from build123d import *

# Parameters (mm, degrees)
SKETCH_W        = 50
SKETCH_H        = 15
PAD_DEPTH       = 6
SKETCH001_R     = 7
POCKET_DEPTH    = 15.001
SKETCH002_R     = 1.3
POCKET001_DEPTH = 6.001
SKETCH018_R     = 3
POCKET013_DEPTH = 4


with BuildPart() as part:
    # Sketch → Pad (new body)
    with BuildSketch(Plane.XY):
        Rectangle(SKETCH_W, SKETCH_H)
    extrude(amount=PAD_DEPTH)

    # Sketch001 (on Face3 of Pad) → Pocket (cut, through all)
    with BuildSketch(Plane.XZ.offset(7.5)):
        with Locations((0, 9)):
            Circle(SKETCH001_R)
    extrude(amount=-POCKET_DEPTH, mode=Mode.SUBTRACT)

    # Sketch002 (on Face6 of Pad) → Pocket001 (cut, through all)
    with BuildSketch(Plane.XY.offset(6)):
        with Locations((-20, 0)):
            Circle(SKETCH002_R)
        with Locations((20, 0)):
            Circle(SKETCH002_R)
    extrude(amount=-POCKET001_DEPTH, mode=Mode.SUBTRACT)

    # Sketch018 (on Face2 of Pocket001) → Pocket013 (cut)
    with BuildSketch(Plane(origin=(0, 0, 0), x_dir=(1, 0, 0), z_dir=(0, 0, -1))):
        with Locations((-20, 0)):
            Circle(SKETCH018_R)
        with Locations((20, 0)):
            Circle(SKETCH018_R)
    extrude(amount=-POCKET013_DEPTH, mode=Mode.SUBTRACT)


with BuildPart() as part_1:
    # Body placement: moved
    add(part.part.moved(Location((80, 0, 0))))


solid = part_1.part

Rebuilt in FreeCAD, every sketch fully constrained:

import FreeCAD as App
import Part
import Sketcher

doc = App.newDocument("Part")
body = doc.addObject("PartDesign::Body", "Body")

sketch1 = body.newObject("Sketcher::SketchObject", "Sketch")
sketch1.AttachmentSupport = (doc.getObject("XY_Plane"), [""])
sketch1.MapMode = "FlatFace"
sketch1.addGeometry(Part.LineSegment(App.Vector(-25, 8, 0), App.Vector(-25, -8, 0)), False)
sketch1.addGeometry(Part.LineSegment(App.Vector(-25, -8, 0), App.Vector(25, -8, 0)), False)
sketch1.addGeometry(Part.LineSegment(App.Vector(25, -8, 0), App.Vector(25, 8, 0)), False)
sketch1.addGeometry(Part.LineSegment(App.Vector(25, 8, 0), App.Vector(-25, 8, 0)), False)
sketch1.addConstraint(Sketcher.Constraint("Coincident", 0, 2, 1, 1))
sketch1.addConstraint(Sketcher.Constraint("Coincident", 1, 2, 2, 1))
sketch1.addConstraint(Sketcher.Constraint("Coincident", 2, 2, 3, 1))
sketch1.addConstraint(Sketcher.Constraint("Coincident", 3, 2, 0, 1))
sketch1.addConstraint(Sketcher.Constraint("Vertical", 0))
sketch1.addConstraint(Sketcher.Constraint("Horizontal", 1))
sketch1.addConstraint(Sketcher.Constraint("Vertical", 2))
sketch1.addConstraint(Sketcher.Constraint("Horizontal", 3))
sketch1.addConstraint(Sketcher.Constraint("Symmetric", 0, 2, 2, 2, -1, 1))
sketch1.addConstraint(Sketcher.Constraint("DistanceX", 1, 1, 1, 2, 50.0))
sketch1.addConstraint(Sketcher.Constraint("DistanceY", 0, 2, 0, 1, 15.0))
pad1 = body.newObject("PartDesign::Pad", "Pad")
pad1.Profile = sketch1
pad1.Length = 6

sketch2 = body.newObject("Sketcher::SketchObject", "Sketch001")
sketch2.AttachmentSupport = (doc.getObject("XZ_Plane"), [""])
sketch2.MapMode = "FlatFace"
sketch2.AttachmentOffset = App.Placement(App.Vector(0, 0, 7.5), App.Rotation())
sketch2.addGeometry(Part.Circle(App.Vector(0, 9, 0), App.Vector(0, 0, 1), 7), False)
sketch2.addConstraint(Sketcher.Constraint("PointOnObject", 0, 3, -2))
sketch2.addConstraint(Sketcher.Constraint("Diameter", 0, 14.0))
sketch2.addConstraint(Sketcher.Constraint("DistanceY", -1, 1, 0, 3, 9.0))
pocket1 = body.newObject("PartDesign::Pocket", "Pocket")
pocket1.Profile = sketch2
pocket1.Type = "ThroughAll"

sketch3 = body.newObject("Sketcher::SketchObject", "Sketch002")
sketch3.AttachmentSupport = (doc.getObject("XY_Plane"), [""])
sketch3.MapMode = "FlatFace"
sketch3.AttachmentOffset = App.Placement(App.Vector(0, 0, 6), App.Rotation())
sketch3.addGeometry(Part.Circle(App.Vector(-20, 0, 0), App.Vector(0, 0, 1), 1.3), False)
sketch3.addGeometry(Part.Circle(App.Vector(20, 0, 0), App.Vector(0, 0, 1), 1.3), False)
sketch3.addConstraint(Sketcher.Constraint("Equal", 0, 1))
sketch3.addConstraint(Sketcher.Constraint("Symmetric", 0, 3, 1, 3, -1, 1))
sketch3.addConstraint(Sketcher.Constraint("PointOnObject", 0, 3, -1))
sketch3.addConstraint(Sketcher.Constraint("Diameter", 0, 2.6))
sketch3.addConstraint(Sketcher.Constraint("DistanceX", 0, 3, -1, 1, 20.0))
pocket2 = body.newObject("PartDesign::Pocket", "Pocket001")
pocket2.Profile = sketch3
pocket2.Type = "ThroughAll"

sketch4 = body.newObject("Sketcher::SketchObject", "Sketch003")
sketch4.AttachmentSupport = (doc.getObject("XY_Plane"), [""])
sketch4.MapMode = "FlatFace"
sketch4.addGeometry(Part.Circle(App.Vector(-20, 0, 0), App.Vector(0, 0, 1), 3), False)
sketch4.addGeometry(Part.Circle(App.Vector(20, 0, 0), App.Vector(0, 0, 1), 3), False)
sketch4.addConstraint(Sketcher.Constraint("Equal", 0, 1))
sketch4.addConstraint(Sketcher.Constraint("Symmetric", 0, 3, 1, 3, -1, 1))
sketch4.addConstraint(Sketcher.Constraint("PointOnObject", 0, 3, -1))
sketch4.addConstraint(Sketcher.Constraint("Diameter", 0, 6.0))
sketch4.addConstraint(Sketcher.Constraint("DistanceX", 0, 3, -1, 1, 20.0))
pocket3 = body.newObject("PartDesign::Pocket", "Pocket002")
pocket3.Profile = sketch4
pocket3.Length = 4
pocket3.Reversed = True
body2 = doc.addObject("PartDesign::Body", "Body001")
doc.recompute()

body.Placement = App.Placement(App.Vector(80, 0, 0), App.Rotation(App.Vector(0, 0, 1), 0))
boolean = body2.newObject("PartDesign::Boolean", "Boolean")
boolean.Type = "Fuse"
boolean.addObjects([body])

doc.recompute()
